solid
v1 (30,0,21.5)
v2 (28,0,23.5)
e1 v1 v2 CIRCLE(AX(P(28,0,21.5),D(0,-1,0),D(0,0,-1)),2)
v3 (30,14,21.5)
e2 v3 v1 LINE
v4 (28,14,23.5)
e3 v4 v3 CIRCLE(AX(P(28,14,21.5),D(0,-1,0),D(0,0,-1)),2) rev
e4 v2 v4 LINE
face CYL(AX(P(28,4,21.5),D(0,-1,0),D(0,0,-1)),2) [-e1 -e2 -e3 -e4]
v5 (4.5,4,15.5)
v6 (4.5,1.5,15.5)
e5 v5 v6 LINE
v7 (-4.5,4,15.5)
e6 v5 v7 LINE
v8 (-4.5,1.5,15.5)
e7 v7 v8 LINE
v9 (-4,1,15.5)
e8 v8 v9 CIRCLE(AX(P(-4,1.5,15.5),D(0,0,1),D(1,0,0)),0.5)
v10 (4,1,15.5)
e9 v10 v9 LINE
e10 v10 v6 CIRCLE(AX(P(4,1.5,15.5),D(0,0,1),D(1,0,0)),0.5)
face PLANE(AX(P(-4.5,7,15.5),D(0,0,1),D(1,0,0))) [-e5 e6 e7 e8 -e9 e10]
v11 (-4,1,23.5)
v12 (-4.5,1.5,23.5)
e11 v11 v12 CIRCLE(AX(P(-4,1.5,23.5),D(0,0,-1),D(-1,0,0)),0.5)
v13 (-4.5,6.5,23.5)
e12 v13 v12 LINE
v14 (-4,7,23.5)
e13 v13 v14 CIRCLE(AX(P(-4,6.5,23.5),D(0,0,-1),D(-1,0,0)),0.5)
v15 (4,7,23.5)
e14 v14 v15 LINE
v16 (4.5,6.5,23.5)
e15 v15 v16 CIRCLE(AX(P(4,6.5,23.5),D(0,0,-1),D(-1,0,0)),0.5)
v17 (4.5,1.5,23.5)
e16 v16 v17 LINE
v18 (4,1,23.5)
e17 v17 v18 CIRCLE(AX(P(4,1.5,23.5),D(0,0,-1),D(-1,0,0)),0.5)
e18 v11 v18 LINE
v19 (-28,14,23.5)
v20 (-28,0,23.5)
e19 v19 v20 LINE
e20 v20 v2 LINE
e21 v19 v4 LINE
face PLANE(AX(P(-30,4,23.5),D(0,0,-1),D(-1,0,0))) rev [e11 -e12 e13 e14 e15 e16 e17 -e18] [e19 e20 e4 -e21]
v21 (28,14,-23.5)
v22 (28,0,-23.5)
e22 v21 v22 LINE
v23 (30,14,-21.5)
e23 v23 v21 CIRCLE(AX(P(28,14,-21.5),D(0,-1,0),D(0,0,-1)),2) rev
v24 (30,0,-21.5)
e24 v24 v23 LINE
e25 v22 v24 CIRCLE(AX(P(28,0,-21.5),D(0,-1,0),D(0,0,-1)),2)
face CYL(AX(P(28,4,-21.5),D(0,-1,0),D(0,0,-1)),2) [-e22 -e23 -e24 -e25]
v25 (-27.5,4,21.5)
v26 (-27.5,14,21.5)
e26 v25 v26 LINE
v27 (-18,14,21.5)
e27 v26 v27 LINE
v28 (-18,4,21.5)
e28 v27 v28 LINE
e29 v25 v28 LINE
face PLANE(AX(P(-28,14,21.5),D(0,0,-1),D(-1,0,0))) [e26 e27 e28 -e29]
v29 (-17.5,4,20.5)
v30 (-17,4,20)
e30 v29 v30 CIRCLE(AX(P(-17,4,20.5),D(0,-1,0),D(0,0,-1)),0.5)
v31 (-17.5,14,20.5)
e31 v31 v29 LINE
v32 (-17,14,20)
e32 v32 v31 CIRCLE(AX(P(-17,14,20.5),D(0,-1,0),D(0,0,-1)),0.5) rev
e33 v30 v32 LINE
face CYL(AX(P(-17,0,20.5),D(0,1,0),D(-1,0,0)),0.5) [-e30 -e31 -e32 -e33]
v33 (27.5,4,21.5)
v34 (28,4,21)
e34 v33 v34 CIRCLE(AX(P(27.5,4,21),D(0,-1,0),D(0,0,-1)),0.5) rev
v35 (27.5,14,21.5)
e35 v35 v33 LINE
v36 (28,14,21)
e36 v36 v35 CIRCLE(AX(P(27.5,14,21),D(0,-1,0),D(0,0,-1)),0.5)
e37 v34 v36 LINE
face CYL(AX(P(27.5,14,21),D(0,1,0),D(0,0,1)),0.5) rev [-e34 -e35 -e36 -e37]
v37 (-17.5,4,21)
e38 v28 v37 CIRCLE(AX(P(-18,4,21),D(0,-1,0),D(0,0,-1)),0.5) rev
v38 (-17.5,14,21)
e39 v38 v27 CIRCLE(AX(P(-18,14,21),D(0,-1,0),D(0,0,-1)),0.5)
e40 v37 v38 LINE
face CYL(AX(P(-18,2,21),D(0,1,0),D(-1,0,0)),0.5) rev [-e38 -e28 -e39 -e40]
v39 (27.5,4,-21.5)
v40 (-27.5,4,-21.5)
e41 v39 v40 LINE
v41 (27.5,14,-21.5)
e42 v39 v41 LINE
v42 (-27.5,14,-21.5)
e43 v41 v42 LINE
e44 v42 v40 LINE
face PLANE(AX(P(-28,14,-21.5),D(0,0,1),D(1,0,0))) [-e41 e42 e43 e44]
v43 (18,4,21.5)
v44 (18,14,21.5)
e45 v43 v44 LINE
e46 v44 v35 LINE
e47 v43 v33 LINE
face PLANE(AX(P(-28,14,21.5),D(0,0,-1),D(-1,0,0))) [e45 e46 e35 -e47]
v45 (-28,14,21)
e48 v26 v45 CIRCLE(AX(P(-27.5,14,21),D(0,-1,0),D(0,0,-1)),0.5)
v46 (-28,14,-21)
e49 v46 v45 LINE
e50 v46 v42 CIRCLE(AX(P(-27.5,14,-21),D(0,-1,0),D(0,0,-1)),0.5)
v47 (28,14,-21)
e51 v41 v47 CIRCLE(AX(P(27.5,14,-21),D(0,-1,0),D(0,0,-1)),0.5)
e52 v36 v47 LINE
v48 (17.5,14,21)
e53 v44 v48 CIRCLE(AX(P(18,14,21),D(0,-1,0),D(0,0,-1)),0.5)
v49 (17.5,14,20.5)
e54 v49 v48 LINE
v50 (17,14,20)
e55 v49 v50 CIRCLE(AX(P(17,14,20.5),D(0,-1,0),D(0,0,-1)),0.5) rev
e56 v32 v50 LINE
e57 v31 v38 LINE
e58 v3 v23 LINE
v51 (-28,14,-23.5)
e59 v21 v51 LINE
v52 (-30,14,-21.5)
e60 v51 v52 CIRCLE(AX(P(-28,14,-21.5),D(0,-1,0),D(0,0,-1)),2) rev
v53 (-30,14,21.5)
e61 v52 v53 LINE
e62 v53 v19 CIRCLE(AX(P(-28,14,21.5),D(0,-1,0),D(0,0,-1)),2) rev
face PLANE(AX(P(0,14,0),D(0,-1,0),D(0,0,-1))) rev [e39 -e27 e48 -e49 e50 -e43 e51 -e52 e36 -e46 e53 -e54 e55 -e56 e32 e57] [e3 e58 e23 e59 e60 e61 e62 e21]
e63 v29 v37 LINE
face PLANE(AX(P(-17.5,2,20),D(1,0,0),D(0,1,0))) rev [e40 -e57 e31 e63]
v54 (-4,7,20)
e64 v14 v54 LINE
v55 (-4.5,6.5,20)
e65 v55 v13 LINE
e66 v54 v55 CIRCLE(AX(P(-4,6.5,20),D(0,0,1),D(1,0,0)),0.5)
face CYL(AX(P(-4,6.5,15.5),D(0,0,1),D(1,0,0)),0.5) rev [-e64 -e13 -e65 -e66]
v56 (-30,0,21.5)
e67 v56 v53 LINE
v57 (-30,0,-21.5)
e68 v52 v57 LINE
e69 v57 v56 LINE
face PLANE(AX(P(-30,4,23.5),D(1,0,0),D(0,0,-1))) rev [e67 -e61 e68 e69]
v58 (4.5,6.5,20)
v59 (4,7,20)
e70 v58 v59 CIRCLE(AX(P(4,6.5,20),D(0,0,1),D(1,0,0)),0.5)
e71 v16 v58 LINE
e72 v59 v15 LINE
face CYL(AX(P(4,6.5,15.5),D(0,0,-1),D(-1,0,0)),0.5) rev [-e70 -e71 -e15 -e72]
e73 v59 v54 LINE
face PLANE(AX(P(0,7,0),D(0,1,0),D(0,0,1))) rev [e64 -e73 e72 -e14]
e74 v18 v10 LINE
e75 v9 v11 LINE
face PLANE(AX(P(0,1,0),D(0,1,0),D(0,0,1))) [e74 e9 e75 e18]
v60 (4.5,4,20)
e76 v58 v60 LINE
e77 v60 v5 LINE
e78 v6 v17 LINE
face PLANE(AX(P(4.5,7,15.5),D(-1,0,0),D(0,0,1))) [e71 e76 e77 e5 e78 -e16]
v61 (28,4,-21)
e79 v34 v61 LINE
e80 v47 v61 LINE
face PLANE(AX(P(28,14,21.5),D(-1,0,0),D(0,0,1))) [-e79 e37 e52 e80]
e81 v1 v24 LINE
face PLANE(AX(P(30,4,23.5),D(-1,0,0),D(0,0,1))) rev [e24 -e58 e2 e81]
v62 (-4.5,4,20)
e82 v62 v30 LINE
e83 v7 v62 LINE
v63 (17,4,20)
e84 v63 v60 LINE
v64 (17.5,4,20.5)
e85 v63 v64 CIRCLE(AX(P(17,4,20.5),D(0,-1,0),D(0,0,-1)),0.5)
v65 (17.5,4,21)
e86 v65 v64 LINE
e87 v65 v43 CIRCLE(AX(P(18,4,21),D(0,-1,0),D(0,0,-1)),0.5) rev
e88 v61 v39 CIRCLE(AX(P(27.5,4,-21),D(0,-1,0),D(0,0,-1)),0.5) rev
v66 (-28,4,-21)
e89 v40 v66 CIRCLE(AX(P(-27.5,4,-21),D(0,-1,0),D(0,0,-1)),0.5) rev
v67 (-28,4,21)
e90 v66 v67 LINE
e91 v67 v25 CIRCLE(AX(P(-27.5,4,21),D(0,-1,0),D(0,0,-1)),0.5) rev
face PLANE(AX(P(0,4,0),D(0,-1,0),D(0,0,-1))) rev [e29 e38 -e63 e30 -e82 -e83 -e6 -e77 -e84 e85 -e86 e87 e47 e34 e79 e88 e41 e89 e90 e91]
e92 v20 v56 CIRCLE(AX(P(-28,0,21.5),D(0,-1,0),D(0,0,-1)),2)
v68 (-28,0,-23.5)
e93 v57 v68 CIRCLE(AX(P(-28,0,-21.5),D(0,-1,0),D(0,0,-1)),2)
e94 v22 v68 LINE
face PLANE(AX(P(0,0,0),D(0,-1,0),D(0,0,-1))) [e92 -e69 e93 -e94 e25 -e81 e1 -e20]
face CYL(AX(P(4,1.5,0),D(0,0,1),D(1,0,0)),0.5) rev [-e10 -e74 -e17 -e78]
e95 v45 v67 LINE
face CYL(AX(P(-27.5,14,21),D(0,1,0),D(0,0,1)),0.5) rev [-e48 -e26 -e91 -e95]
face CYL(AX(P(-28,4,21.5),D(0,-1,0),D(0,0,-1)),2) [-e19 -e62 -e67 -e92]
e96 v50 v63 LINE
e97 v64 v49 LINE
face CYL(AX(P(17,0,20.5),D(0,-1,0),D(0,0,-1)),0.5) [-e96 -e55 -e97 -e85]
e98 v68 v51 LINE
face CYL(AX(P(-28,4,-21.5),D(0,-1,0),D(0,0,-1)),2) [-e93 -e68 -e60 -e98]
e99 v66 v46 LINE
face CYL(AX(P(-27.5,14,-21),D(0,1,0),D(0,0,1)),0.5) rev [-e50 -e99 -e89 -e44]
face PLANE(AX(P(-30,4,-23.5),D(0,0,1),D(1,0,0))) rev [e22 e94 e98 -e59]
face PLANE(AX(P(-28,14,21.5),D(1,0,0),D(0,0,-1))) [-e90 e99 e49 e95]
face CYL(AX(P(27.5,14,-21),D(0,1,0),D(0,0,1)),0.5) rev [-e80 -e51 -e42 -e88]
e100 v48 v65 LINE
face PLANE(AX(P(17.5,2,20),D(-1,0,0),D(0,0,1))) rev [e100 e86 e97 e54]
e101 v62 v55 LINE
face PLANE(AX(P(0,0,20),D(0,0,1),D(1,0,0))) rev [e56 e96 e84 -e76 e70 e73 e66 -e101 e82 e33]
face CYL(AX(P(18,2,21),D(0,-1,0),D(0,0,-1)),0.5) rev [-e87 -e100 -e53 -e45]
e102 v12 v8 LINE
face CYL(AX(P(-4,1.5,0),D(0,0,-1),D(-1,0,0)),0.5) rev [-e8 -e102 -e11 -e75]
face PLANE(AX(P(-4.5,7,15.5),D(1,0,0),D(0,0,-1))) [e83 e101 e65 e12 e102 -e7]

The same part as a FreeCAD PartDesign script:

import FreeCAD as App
import Part
import Sketcher
Q = App.Units.Quantity


def edges_at(feature, points):
    """Names of the edges that pass closest to the given points."""
    edges = feature.Shape.Edges
    near = lambda p: min(range(len(edges)), key=lambda i: edges[i].distToShape(Part.Vertex(*p))[0])
    return sorted({f"Edge{near(p) + 1}" for p in points})


def add_polygon(sketch, points):
    """Adds a closed chain of lines whose ends are joined by coincident constraints."""
    first, n = sketch.GeometryCount, len(points)
    for a, b in zip(points, points[1:] + points[:1]):
        sketch.addGeometry(Part.LineSegment(App.Vector(*a, 0), App.Vector(*b, 0)), False)
    for i in range(n):
        sketch.addConstraint(Sketcher.Constraint("Coincident", first + i, 2, first + (i + 1) % n, 1))

doc = App.newDocument("Part")
body = doc.addObject("PartDesign::Body", "Body")

# Sketch on XZ plane
sketch1 = body.newObject("Sketcher::SketchObject", "Sketch")
sketch1.AttachmentSupport = (doc.getObject("XZ_Plane"), [""])
sketch1.MapMode = "FlatFace"
add_polygon(sketch1, [(-30, -24), (-30, 24), (30, 24), (30, -24)])  # lines 0-3
sketch1.addConstraint(Sketcher.Constraint("Vertical", 0))
sketch1.addConstraint(Sketcher.Constraint("Horizontal", 1))
sketch1.addConstraint(Sketcher.Constraint("Vertical", 2))
sketch1.addConstraint(Sketcher.Constraint("Horizontal", 3))
sketch1.addConstraint(Sketcher.Constraint("Symmetric", 0, 2, 2, 2, -1, 1))
sketch1.addConstraint(Sketcher.Constraint("DistanceX", 1, 1, 1, 2, Q("60 mm")))
sketch1.addConstraint(Sketcher.Constraint("DistanceY", 0, 1, 0, 2, Q("47 mm")))
pad1 = body.newObject("PartDesign::Pad", "Pad")
pad1.Profile = sketch1
pad1.Length = 4
pad1.Reversed = True

# Sketch on XZ plane
sketch2 = body.newObject("Sketcher::SketchObject", "Sketch001")
sketch2.AttachmentSupport = (doc.getObject("XZ_Plane"), [""])
sketch2.MapMode = "FlatFace"
sketch2.AttachmentOffset = App.Placement(App.Vector(0, 0, -4), App.Rotation())
add_polygon(sketch2, [(-30, -24), (-30, 24), (30, 24), (30, -24)])  # lines 0-3
add_polygon(sketch2, [(28, 22), (-28, 22), (-28, -22), (28, -22)])  # lines 4-7
sketch2.addConstraint(Sketcher.Constraint("Vertical", 0))
sketch2.addConstraint(Sketcher.Constraint("Horizontal", 1))
sketch2.addConstraint(Sketcher.Constraint("Vertical", 2))
sketch2.addConstraint(Sketcher.Constraint("Horizontal", 3))
sketch2.addConstraint(Sketcher.Constraint("Horizontal", 4))
sketch2.addConstraint(Sketcher.Constraint("Vertical", 5))
sketch2.addConstraint(Sketcher.Constraint("Horizontal", 6))
sketch2.addConstraint(Sketcher.Constraint("Vertical", 7))
sketch2.addConstraint(Sketcher.Constraint("Symmetric", 0, 2, 2, 2, -1, 1))
sketch2.addConstraint(Sketcher.Constraint("Symmetric", 4, 2, 6, 2, -1, 1))
sketch2.addConstraint(Sketcher.Constraint("DistanceX", 1, 1, 1, 2, Q("60 mm")))
sketch2.addConstraint(Sketcher.Constraint("DistanceX", 4, 2, 4, 1, Q("56 mm")))
sketch2.addConstraint(Sketcher.Constraint("DistanceY", 0, 1, 0, 2, Q("47 mm")))
sketch2.addConstraint(Sketcher.Constraint("DistanceY", 5, 2, 5, 1, Q("43 mm")))
pad2 = body.newObject("PartDesign::Pad", "Pad001")
pad2.Profile = sketch2
pad2.Length = 10
pad2.Reversed = True

# Sketch on XY plane
sketch3 = body.newObject("Sketcher::SketchObject", "Sketch002")
sketch3.AttachmentSupport = (doc.getObject("XY_Plane"), [""])
sketch3.MapMode = "FlatFace"
sketch3.AttachmentOffset = App.Placement(App.Vector(0, 0, 21.5), App.Rotation())
add_polygon(sketch3, [(18, 14), (18, 2), (-18, 2), (-18, 14)])  # lines 0-3
sketch3.addConstraint(Sketcher.Constraint("Vertical", 0))
sketch3.addConstraint(Sketcher.Constraint("Horizontal", 1))
sketch3.addConstraint(Sketcher.Constraint("Vertical", 2))
sketch3.addConstraint(Sketcher.Constraint("Horizontal", 3))
sketch3.addConstraint(Sketcher.Constraint("DistanceX", 1, 2, 1, 1, Q("35 mm")))
sketch3.addConstraint(Sketcher.Constraint("DistanceY", 0, 2, 0, 1, Q("12 mm")))
sketch3.addConstraint(Sketcher.Constraint("DistanceY", -1, 1, 0, 2, Q("2 mm")))
sketch3.addConstraint(Sketcher.Constraint("DistanceX", -1, 1, 0, 2, Q("17.5 mm")))
pad3 = body.newObject("PartDesign::Pad", "Pad002")
pad3.Profile = sketch3
pad3.Length = 1.5
pad3.Reversed = True

# Sketch on XZ plane
sketch4 = body.newObject("Sketcher::SketchObject", "Sketch003")
sketch4.AttachmentSupport = (doc.getObject("XZ_Plane"), [""])
sketch4.MapMode = "FlatFace"
sketch4.AttachmentOffset = App.Placement(App.Vector(0, 0, -4), App.Rotation())
add_polygon(sketch4, [(-4, 16), (-4, 24), (4, 24), (4, 16)])  # lines 0-3
sketch4.addConstraint(Sketcher.Constraint("Vertical", 0))
sketch4.addConstraint(Sketcher.Constraint("Horizontal", 1))
sketch4.addConstraint(Sketcher.Constraint("Vertical", 2))
sketch4.addConstraint(Sketcher.Constraint("Horizontal", 3))
sketch4.addConstraint(Sketcher.Constraint("DistanceX", 1, 1, 1, 2, Q("9 mm")))
sketch4.addConstraint(Sketcher.Constraint("DistanceY", 0, 1, 0, 2, Q("8 mm")))
sketch4.addConstraint(Sketcher.Constraint("DistanceX", 0, 2, -1, 1, Q("4.5 mm")))
sketch4.addConstraint(Sketcher.Constraint("DistanceY", -1, 1, 0, 2, Q("23.5 mm")))
pocket1 = body.newObject("PartDesign::Pocket", "Pocket")
pocket1.Profile = sketch4
pocket1.Type = "TwoLengths"
pocket1.Length = 3
pocket1.Length2 = 3
doc.recompute()

fillet = body.newObject("PartDesign::Fillet", "Fillet")
fillet.Base = (pocket1, edges_at(pocket1, [
    (30, 7, 23.5),
    (-30, 7, 23.5),
    (-30, 7, -23.5),
    (30, 7, -23.5),
]))
fillet.Radius = 2
doc.recompute()

fillet2 = body.newObject("PartDesign::Fillet", "Fillet001")
fillet2.Base = (fillet, edges_at(fillet, [
    (28, 9, -21.5),
    (-28, 9, -21.5),
    (-28, 9, 21.5),
    (28, 9, 21.5),
    (-17.5, 9, 21.5),
    (17.5, 9, 21.5),
    (17.5, 9, 20),
    (-17.5, 9, 20),
]))
fillet2.Radius = 0.5
doc.recompute()

fillet3 = body.newObject("PartDesign::Fillet", "Fillet002")
fillet3.Base = (fillet2, edges_at(fillet2, [
    (4.5, 1, 19.5),
    (-4.5, 1, 19.5),
    (4.5, 7, 21.75),
    (-4.5, 7, 21.75),
]))
fillet3.Radius = 0.5

doc.recompute()
